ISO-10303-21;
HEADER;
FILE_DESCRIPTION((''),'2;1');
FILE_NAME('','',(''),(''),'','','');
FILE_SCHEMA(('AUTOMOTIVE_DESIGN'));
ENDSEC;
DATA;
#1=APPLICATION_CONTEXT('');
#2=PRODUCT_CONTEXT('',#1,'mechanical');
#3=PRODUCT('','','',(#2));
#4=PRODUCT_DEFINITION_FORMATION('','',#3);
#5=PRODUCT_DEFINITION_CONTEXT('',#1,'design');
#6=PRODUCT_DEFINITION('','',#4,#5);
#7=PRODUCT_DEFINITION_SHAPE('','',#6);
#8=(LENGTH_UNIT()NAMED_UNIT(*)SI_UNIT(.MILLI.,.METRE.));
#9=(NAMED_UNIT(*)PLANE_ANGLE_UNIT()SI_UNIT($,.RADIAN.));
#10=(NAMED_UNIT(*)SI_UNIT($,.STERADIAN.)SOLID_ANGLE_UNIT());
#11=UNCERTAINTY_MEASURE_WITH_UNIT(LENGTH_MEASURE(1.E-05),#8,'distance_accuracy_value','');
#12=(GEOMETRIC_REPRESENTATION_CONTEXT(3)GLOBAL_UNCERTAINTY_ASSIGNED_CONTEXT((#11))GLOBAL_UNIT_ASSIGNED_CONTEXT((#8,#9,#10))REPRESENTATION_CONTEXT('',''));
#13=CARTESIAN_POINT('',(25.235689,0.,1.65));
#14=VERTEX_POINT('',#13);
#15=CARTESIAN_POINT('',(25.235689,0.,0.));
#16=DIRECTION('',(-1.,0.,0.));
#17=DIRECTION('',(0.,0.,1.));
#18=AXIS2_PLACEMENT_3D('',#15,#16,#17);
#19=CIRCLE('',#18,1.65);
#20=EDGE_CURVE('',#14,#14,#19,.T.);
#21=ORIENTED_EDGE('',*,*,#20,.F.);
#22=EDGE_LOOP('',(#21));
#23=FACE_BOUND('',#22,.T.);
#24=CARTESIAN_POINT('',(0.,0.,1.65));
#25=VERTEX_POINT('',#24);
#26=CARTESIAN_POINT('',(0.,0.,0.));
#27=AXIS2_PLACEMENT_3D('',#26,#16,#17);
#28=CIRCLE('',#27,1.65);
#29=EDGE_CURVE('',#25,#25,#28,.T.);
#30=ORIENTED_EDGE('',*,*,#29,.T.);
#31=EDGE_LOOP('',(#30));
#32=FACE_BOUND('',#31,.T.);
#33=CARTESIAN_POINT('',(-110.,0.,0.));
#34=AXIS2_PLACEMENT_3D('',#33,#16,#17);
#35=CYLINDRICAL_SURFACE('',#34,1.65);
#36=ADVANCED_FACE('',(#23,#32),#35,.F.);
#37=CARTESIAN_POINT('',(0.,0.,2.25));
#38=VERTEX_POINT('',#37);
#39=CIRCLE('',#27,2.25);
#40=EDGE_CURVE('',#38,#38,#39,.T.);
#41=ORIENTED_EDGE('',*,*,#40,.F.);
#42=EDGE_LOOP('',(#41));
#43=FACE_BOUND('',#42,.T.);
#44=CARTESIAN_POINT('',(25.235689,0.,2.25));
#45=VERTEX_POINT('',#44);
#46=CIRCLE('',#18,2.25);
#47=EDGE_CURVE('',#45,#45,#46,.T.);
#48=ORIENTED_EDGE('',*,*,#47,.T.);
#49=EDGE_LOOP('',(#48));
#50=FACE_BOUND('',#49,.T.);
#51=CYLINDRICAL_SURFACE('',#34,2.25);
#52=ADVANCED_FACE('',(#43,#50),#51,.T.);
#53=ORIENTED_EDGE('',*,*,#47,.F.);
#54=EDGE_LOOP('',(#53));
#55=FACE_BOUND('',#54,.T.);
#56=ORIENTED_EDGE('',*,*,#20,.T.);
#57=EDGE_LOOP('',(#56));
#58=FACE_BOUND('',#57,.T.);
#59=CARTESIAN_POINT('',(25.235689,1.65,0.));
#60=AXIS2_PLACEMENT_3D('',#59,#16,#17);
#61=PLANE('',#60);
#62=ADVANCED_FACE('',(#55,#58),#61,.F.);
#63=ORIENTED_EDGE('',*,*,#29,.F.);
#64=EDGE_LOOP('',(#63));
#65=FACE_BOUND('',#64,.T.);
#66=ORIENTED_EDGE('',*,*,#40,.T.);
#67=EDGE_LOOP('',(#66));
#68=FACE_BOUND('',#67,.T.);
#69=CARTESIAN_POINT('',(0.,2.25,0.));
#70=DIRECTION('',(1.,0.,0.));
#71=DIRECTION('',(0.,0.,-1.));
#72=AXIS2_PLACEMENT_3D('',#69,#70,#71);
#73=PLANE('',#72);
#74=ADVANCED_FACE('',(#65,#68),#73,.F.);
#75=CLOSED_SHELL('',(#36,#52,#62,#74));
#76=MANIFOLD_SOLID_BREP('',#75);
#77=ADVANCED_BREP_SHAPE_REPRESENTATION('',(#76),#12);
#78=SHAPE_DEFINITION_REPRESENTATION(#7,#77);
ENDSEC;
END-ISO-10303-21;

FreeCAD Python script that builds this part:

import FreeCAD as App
import Part
import Sketcher
Q = App.Units.Quantity

doc = App.newDocument("Part")
body = doc.addObject("PartDesign::Body", "Body")

# Sketch on XY plane
sketch1 = body.newObject("Sketcher::SketchObject", "Sketch")
sketch1.AttachmentSupport = (doc.getObject("XY_Plane"), [""])
sketch1.MapMode = "FlatFace"
sketch1.addGeometry([
    Part.LineSegment(App.Vector(0, 2.2, 0), App.Vector(0, 1.6, 0)),
    Part.LineSegment(App.Vector(0, 1.6, 0), App.Vector(25.2, 1.6, 0)),
    Part.LineSegment(App.Vector(25.2, 1.6, 0), App.Vector(25.2, 2.2, 0)),
    Part.LineSegment(App.Vector(25.2, 2.2, 0), App.Vector(0, 2.2, 0)),
], False)
sketch1.addConstraint([
    Sketcher.Constraint("Coincident", 0, 2, 1, 1),
    Sketcher.Constraint("Coincident", 1, 2, 2, 1),
    Sketcher.Constraint("Coincident", 2, 2, 3, 1),
    Sketcher.Constraint("Coincident", 3, 2, 0, 1),
    Sketcher.Constraint("Vertical", 0),
    Sketcher.Constraint("Horizontal", 1),
    Sketcher.Constraint("Vertical", 2),
    Sketcher.Constraint("Horizontal", 3),
    Sketcher.Constraint("PointOnObject", 0, 2, -2),
    Sketcher.Constraint("DistanceY", 0, 2, 0, 1, Q("0.6 mm")),
    Sketcher.Constraint("DistanceY", -1, 1, 0, 2, Q("1.65 mm")),
    Sketcher.Constraint("DistanceX", 1, 1, 1, 2, Q("25.235689 mm")),
])
revolution = body.newObject("PartDesign::Revolution", "Revolution")
revolution.Profile = sketch1
revolution.ReferenceAxis = (sketch1, ["H_Axis"])
revolution.Angle = 360

doc.recompute()
